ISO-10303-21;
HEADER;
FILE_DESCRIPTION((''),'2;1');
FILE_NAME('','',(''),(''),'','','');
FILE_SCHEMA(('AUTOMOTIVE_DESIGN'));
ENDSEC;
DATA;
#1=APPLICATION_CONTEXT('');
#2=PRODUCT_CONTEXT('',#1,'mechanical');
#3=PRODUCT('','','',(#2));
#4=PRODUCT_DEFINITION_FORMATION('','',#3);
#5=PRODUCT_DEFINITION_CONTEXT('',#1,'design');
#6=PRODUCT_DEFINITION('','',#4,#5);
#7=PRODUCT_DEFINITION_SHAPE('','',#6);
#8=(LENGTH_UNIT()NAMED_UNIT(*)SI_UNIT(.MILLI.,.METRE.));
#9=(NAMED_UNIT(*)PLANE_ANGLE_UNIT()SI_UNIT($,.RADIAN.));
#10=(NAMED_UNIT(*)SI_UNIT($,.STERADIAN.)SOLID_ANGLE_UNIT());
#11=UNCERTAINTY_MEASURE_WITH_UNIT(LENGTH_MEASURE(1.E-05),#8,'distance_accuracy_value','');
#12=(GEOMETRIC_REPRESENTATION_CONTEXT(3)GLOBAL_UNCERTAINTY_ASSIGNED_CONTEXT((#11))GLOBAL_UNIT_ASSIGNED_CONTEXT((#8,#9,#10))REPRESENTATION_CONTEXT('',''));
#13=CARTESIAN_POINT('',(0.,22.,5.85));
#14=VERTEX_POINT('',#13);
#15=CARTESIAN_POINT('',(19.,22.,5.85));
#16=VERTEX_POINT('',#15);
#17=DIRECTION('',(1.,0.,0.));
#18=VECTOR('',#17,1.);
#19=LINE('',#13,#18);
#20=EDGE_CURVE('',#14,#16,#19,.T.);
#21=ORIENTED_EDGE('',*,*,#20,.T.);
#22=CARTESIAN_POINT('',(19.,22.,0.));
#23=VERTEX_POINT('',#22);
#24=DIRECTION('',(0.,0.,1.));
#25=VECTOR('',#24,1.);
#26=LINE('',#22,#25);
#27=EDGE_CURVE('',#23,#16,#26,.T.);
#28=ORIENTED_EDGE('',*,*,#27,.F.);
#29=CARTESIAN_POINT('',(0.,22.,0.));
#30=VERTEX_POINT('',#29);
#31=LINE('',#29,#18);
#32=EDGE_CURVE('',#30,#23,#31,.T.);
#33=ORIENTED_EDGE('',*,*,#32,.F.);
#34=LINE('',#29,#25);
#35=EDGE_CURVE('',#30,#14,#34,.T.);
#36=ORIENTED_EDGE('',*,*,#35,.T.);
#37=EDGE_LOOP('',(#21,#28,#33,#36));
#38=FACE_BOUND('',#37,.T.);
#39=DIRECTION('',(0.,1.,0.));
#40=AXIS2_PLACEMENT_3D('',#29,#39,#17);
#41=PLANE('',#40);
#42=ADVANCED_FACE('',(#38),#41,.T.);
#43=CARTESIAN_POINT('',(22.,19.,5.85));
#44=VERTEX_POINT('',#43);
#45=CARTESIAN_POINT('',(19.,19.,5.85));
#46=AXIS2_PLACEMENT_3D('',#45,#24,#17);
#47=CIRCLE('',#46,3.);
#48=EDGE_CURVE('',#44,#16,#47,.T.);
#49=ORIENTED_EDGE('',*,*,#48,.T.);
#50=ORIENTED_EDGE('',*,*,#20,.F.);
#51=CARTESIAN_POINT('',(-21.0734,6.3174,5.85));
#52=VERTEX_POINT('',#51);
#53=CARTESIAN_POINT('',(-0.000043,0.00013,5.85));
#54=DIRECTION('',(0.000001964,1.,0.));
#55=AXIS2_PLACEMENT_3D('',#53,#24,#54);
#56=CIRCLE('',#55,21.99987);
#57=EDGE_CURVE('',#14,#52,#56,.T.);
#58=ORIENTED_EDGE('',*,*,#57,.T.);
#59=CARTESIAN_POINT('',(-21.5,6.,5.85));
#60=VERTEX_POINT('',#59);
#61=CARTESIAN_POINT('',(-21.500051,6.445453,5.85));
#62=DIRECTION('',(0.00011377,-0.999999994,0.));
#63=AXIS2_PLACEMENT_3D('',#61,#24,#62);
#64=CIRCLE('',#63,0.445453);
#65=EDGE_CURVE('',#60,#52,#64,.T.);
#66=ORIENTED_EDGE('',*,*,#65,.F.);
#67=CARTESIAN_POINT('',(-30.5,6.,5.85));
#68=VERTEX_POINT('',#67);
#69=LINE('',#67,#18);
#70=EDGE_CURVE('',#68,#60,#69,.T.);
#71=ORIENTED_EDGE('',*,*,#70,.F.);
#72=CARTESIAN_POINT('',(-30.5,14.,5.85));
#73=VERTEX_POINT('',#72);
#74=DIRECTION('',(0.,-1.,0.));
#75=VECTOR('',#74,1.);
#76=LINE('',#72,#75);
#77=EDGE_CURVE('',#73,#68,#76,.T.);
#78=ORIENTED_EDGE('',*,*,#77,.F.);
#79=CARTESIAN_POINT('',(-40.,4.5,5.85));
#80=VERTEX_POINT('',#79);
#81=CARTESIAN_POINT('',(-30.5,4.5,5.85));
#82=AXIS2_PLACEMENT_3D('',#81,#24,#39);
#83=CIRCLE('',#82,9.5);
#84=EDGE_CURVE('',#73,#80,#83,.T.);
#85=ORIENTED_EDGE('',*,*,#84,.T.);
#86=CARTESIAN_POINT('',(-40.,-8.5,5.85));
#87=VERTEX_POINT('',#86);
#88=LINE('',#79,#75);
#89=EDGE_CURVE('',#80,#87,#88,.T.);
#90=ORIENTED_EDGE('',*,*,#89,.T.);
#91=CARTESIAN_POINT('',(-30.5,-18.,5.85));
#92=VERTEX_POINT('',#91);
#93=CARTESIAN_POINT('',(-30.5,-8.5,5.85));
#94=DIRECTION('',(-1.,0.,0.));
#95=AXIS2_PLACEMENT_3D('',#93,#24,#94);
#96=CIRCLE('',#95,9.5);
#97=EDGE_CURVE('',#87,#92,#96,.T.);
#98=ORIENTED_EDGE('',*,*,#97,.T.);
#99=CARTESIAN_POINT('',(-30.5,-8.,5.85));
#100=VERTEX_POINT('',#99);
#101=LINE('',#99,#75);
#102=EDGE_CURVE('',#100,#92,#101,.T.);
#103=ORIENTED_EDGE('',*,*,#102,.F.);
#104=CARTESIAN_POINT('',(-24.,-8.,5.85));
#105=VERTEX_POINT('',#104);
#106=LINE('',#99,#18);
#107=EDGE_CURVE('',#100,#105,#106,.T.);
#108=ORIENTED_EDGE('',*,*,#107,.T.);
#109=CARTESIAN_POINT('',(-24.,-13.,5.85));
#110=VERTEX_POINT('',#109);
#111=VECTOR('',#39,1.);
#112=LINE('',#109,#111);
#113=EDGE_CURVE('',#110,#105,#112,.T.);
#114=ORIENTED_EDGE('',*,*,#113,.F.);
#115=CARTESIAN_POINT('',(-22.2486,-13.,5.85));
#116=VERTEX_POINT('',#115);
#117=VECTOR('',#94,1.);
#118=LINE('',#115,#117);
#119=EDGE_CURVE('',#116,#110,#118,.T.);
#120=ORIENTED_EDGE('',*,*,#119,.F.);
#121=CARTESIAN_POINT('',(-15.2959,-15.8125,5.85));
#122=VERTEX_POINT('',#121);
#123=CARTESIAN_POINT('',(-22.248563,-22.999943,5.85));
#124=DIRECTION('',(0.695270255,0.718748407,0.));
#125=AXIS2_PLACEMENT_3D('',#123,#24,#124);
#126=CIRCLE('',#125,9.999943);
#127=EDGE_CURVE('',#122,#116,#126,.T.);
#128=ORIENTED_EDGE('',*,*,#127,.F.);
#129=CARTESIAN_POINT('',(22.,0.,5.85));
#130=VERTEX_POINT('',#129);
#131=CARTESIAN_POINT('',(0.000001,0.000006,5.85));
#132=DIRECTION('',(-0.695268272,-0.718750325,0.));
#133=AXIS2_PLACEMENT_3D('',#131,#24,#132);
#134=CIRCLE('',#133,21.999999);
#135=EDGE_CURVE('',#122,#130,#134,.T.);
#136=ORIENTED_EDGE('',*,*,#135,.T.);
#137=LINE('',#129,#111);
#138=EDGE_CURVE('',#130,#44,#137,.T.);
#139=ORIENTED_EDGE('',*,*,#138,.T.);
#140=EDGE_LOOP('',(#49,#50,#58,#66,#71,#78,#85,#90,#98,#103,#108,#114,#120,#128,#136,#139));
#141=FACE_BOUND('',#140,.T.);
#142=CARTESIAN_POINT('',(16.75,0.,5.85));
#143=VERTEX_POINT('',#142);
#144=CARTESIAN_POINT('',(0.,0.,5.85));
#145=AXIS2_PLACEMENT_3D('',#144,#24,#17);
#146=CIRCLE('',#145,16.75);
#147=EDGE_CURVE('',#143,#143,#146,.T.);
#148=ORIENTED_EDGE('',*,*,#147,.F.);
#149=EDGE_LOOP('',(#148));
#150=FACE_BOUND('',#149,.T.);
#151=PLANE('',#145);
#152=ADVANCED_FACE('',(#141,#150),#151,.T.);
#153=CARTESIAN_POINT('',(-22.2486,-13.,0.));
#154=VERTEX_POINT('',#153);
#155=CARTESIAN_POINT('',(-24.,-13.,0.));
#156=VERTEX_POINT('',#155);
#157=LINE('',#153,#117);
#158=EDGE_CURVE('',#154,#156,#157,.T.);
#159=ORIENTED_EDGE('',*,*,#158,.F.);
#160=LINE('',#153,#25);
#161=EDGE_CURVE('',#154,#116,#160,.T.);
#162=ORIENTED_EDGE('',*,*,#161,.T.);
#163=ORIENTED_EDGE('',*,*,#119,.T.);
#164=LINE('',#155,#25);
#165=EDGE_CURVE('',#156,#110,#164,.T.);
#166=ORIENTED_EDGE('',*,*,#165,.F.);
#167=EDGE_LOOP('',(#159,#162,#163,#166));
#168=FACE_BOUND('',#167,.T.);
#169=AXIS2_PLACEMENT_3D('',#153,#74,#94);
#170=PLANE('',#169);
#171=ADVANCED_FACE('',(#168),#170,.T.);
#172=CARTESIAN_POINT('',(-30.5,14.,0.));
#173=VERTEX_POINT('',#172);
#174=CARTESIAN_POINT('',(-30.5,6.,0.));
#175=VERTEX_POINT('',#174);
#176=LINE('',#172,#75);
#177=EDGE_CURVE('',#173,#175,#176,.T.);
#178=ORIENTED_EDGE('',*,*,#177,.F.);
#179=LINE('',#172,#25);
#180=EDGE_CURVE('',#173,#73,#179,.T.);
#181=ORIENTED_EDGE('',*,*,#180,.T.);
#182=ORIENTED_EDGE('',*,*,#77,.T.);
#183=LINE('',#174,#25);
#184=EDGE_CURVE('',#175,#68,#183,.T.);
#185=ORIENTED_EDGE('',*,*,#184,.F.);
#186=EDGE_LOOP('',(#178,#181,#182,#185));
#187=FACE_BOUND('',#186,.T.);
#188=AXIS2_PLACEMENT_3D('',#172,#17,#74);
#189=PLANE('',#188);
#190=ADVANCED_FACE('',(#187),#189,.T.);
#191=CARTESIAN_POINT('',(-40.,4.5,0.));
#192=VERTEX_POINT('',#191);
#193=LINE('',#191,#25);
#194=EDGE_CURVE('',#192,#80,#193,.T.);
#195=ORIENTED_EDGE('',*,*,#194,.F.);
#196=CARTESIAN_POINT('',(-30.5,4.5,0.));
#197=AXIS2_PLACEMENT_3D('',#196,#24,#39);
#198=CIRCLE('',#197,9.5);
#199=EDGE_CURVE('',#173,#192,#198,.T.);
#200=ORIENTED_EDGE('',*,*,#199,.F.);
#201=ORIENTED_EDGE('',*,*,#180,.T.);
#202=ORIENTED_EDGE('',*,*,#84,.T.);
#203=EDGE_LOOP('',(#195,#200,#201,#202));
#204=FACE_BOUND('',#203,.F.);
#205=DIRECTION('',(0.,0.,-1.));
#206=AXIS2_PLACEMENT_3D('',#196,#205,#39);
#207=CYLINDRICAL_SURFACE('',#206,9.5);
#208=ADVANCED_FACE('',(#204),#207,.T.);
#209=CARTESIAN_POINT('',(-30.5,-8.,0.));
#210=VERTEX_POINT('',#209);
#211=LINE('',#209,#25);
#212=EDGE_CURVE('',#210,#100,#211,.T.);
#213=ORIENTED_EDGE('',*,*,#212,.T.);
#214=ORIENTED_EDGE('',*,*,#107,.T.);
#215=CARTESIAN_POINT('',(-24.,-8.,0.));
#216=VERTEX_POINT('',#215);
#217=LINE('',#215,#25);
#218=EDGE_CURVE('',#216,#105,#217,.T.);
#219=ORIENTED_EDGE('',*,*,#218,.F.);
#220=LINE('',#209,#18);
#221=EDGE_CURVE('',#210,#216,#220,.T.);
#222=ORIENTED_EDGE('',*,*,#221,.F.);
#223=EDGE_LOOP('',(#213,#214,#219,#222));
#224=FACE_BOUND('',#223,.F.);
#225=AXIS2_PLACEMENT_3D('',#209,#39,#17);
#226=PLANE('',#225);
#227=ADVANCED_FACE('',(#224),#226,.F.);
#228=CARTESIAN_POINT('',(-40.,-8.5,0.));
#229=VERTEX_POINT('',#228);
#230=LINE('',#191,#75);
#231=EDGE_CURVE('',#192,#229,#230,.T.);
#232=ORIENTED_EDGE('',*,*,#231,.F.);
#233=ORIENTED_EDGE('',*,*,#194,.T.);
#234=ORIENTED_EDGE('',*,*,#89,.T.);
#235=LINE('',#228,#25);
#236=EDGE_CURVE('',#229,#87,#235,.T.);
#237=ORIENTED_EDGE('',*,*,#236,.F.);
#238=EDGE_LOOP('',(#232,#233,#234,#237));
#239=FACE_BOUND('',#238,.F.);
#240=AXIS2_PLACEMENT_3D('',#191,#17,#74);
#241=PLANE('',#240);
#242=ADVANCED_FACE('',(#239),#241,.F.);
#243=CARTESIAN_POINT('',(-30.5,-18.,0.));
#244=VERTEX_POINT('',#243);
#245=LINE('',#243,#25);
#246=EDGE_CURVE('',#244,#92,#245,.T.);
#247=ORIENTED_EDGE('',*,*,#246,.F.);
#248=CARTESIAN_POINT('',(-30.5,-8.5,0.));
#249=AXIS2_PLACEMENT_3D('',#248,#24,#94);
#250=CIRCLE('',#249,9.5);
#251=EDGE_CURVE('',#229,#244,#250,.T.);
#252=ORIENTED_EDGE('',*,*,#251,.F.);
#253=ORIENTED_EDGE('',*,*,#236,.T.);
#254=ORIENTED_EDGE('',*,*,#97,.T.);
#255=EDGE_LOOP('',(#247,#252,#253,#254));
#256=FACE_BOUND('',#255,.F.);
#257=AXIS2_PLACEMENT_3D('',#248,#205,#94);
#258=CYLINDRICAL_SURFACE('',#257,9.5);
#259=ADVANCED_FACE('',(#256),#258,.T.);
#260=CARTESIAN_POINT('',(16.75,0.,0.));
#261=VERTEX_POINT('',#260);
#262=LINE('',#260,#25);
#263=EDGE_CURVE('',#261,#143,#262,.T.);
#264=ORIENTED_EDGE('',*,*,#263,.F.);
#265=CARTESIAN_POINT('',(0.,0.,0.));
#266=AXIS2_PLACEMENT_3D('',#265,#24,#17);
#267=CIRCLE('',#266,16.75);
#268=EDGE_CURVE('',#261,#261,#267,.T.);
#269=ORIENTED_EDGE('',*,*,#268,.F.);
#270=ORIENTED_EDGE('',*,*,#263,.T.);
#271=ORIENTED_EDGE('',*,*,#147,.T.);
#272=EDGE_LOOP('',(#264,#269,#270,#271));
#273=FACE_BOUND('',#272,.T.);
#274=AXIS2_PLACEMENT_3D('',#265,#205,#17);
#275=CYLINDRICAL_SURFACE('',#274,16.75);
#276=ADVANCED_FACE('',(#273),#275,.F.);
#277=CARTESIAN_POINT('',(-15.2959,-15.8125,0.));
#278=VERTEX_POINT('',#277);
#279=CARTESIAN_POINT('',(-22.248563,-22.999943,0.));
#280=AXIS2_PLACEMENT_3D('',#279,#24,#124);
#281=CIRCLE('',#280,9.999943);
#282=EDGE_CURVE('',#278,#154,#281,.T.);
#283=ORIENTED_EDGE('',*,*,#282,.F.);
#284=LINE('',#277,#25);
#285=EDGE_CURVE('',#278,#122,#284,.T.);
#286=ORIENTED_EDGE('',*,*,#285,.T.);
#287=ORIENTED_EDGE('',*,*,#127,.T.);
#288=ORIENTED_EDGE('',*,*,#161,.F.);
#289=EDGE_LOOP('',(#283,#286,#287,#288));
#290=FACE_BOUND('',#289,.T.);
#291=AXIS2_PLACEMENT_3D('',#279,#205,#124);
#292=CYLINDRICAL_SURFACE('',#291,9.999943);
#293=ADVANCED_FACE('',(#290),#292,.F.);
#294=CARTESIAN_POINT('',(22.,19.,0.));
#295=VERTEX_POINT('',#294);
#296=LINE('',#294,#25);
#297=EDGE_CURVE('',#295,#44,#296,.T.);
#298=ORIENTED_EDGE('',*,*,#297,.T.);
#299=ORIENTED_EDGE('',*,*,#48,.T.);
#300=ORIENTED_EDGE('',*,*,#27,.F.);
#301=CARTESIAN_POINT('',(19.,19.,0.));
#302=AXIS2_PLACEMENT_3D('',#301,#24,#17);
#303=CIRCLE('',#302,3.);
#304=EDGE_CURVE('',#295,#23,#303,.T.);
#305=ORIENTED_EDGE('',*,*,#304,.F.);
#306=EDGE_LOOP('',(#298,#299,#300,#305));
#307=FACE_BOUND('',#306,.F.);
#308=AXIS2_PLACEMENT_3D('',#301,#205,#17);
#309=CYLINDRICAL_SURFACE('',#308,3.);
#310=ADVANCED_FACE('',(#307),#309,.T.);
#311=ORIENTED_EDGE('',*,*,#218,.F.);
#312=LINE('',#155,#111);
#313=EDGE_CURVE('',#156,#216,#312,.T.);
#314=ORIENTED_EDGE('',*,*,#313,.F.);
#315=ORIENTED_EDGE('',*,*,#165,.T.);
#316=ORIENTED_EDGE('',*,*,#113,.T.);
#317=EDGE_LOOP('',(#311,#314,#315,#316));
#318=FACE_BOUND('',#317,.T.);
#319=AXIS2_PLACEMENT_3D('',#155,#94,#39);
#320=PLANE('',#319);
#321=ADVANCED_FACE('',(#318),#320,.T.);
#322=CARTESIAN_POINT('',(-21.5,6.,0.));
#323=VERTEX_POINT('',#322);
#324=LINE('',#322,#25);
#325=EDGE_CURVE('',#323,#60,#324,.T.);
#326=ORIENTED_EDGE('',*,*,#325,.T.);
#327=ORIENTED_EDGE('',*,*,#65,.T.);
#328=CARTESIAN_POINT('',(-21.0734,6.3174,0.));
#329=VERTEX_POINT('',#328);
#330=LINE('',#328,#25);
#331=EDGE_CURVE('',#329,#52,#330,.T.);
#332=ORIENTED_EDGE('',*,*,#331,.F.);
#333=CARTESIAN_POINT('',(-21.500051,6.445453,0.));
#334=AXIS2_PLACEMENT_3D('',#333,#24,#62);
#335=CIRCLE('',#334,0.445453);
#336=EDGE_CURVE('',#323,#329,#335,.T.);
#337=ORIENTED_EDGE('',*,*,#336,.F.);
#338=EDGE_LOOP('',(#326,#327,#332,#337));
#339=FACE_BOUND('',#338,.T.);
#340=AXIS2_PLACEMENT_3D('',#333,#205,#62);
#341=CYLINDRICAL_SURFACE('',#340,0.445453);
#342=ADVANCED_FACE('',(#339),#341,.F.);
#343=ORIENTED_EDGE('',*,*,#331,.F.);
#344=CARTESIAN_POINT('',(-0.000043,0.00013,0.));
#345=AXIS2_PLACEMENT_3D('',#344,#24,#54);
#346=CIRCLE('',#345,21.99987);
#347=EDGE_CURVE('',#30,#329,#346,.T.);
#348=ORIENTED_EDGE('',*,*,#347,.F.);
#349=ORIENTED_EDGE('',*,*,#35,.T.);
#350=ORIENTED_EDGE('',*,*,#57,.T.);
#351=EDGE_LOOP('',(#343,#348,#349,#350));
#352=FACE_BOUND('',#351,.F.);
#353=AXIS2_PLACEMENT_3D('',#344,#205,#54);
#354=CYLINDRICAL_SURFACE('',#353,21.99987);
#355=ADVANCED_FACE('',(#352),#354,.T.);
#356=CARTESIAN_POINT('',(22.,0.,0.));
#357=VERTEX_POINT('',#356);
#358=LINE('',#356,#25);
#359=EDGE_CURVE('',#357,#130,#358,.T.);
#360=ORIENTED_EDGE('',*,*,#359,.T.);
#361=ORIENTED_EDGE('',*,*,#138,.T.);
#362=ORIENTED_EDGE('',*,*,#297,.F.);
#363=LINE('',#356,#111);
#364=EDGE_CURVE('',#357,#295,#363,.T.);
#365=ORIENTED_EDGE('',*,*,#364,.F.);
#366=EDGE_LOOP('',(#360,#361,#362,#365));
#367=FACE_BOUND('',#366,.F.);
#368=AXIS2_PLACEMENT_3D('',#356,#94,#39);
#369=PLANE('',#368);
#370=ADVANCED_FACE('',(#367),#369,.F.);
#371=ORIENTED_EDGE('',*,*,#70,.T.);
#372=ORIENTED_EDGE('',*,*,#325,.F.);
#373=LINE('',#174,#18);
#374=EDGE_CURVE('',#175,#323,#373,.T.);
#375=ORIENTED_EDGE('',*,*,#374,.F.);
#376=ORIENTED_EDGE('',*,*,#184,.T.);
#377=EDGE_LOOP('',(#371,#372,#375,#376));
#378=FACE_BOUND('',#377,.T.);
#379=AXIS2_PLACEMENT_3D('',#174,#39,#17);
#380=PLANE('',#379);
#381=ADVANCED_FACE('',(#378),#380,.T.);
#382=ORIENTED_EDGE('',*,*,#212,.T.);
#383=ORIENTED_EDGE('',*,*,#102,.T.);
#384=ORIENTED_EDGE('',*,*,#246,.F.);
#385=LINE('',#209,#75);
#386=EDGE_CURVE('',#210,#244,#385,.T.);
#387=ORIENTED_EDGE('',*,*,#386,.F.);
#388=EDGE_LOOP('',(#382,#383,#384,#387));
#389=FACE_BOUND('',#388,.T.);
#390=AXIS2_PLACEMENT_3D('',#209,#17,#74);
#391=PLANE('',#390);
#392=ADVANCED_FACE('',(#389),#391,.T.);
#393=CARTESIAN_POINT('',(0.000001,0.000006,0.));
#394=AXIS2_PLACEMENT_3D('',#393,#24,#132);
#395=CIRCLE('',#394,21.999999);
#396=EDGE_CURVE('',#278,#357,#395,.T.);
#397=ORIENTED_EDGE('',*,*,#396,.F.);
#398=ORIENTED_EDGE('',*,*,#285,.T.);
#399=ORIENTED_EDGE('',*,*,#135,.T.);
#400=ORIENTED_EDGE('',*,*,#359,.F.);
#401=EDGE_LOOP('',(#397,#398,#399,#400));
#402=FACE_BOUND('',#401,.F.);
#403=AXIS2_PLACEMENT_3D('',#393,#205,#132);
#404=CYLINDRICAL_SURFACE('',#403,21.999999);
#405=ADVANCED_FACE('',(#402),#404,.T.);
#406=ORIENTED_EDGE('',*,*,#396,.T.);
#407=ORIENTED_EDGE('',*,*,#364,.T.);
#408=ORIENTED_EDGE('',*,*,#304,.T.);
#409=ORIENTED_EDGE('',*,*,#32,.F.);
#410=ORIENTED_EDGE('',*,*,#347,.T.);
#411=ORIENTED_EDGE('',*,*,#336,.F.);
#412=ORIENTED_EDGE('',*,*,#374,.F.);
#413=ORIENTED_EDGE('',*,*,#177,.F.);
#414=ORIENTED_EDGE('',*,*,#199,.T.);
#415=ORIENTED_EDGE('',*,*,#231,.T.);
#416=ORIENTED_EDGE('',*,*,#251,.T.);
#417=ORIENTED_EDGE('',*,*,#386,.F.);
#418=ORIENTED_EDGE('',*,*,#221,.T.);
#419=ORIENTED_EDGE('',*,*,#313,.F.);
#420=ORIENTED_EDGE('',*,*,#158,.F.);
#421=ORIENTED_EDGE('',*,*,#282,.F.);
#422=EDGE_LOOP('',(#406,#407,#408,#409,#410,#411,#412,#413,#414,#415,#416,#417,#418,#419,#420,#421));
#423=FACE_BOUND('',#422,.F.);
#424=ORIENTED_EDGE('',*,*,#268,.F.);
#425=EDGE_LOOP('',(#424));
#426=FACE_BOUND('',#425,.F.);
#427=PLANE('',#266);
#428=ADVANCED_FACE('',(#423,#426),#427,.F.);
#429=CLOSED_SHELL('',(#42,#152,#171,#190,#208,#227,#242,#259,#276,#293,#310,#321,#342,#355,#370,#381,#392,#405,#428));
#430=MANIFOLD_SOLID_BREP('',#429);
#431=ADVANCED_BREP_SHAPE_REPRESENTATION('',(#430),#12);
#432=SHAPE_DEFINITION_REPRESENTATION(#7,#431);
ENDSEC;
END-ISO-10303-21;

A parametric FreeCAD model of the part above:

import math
import FreeCAD as App
import Part
import Sketcher
from FreeCAD import Vector

doc = App.newDocument("Part")
body = doc.addObject("PartDesign::Body", "Body")

sketch1 = body.newObject("Sketcher::SketchObject", "Sketch")
sketch1.AttachmentSupport = (doc.getObject("XY_Plane"), [""])
sketch1.MapMode = "FlatFace"
sketch1.addGeometry(Part.ArcOfCircle(Part.Circle(Vector(-30.5, 4.5, 0), Vector(0, 0, 1), 9.5), math.radians(90), math.radians(180)), False)
sketch1.addGeometry(Part.LineSegment(Vector(-40, 4.5, 0), Vector(-40, -8.5, 0)), False)
sketch1.addGeometry(Part.ArcOfCircle(Part.Circle(Vector(-30.5, -8.5, 0), Vector(0, 0, 1), 9.5), math.radians(180), math.radians(270)), False)
sketch1.addGeometry(Part.LineSegment(Vector(-30.5, -18, 0), Vector(-30.5, -8, 0)), False)
sketch1.addGeometry(Part.LineSegment(Vector(-30.5, -8, 0), Vector(-24, -8, 0)), False)
sketch1.addGeometry(Part.LineSegment(Vector(-24, -8, 0), Vector(-24, -13, 0)), False)
sketch1.addGeometry(Part.LineSegment(Vector(-24, -13, 0), Vector(-22.25, -13, 0)), False)
sketch1.addGeometry(Part.ArcOfCircle(Part.Circle(Vector(-22.25, -23, 0), Vector(0, 0, 1), 10), math.radians(46), math.radians(90)), False)
sketch1.addGeometry(Part.ArcOfCircle(Part.Circle(Vector(0, 0, 0), Vector(0, 0, 1), 22), math.radians(-134), math.radians(0)), False)
sketch1.addGeometry(Part.LineSegment(Vector(22, 0, 0), Vector(22, 19, 0)), False)
sketch1.addGeometry(Part.ArcOfCircle(Part.Circle(Vector(19, 19, 0), Vector(0, 0, 1), 3), math.radians(0), math.radians(90)), False)
sketch1.addGeometry(Part.LineSegment(Vector(19, 22, 0), Vector(0, 22, 0)), False)
sketch1.addGeometry(Part.ArcOfCircle(Part.Circle(Vector(0, 0, 0), Vector(0, 0, 1), 22), math.radians(90), math.radians(163)), False)
sketch1.addGeometry(Part.ArcOfCircle(Part.Circle(Vector(-21.5, 6.45, 0), Vector(0, 0, 1), 0.45), math.radians(-90), math.radians(-17)), False)
sketch1.addGeometry(Part.LineSegment(Vector(-21.5, 6, 0), Vector(-30.5, 6, 0)), False)
sketch1.addGeometry(Part.LineSegment(Vector(-30.5, 6, 0), Vector(-30.5, 14, 0)), False)
sketch1.addGeometry(Part.Circle(Vector(0, 0, 0), Vector(0, 0, 1), 16.75), False)
sketch1.addConstraint(Sketcher.Constraint("Tangent", 0, 2, 1, 1))
sketch1.addConstraint(Sketcher.Constraint("Tangent", 1, 2, 2, 1))
sketch1.addConstraint(Sketcher.Constraint("Coincident", 2, 2, 3, 1))
sketch1.addConstraint(Sketcher.Constraint("Coincident", 3, 2, 4, 1))
sketch1.addConstraint(Sketcher.Constraint("Coincident", 4, 2, 5, 1))
sketch1.addConstraint(Sketcher.Constraint("Coincident", 5, 2, 6, 1))
sketch1.addConstraint(Sketcher.Constraint("Tangent", 6, 2, 7, 2))
sketch1.addConstraint(Sketcher.Constraint("Tangent", 7, 1, 8, 1))
sketch1.addConstraint(Sketcher.Constraint("Tangent", 8, 2, 9, 1))
sketch1.addConstraint(Sketcher.Constraint("Tangent", 9, 2, 10, 1))
sketch1.addConstraint(Sketcher.Constraint("Tangent", 10, 2, 11, 1))
sketch1.addConstraint(Sketcher.Constraint("Tangent", 11, 2, 12, 1))
sketch1.addConstraint(Sketcher.Constraint("Tangent", 12, 2, 13, 2))
sketch1.addConstraint(Sketcher.Constraint("Tangent", 13, 1, 14, 1))
sketch1.addConstraint(Sketcher.Constraint("Coincident", 14, 2, 15, 1))
sketch1.addConstraint(Sketcher.Constraint("Coincident", 15, 2, 0, 1))
sketch1.addConstraint(Sketcher.Constraint("Vertical", 1))
sketch1.addConstraint(Sketcher.Constraint("Vertical", 3))
sketch1.addConstraint(Sketcher.Constraint("Horizontal", 4))
sketch1.addConstraint(Sketcher.Constraint("Vertical", 5))
sketch1.addConstraint(Sketcher.Constraint("Horizontal", 6))
sketch1.addConstraint(Sketcher.Constraint("Vertical", 9))
sketch1.addConstraint(Sketcher.Constraint("Horizontal", 11))
sketch1.addConstraint(Sketcher.Constraint("Horizontal", 14))
sketch1.addConstraint(Sketcher.Constraint("Vertical", 15))
sketch1.addConstraint(Sketcher.Constraint("Coincident", 8, 3, -1, 1))
sketch1.addConstraint(Sketcher.Constraint("Coincident", 12, 3, -1, 1))
sketch1.addConstraint(Sketcher.Constraint("Coincident", 16, 3, -1, 1))
sketch1.addConstraint(Sketcher.Constraint("Equal", 0, 2))
sketch1.addConstraint(Sketcher.Constraint("Equal", 8, 12))
sketch1.addConstraint(Sketcher.Constraint("Vertical", 0, 3, 2, 2))
sketch1.addConstraint(Sketcher.Constraint("Vertical", 3, 2, 14, 2))
sketch1.addConstraint(Sketcher.Constraint("Radius", 7, 10.0))
sketch1.addConstraint(Sketcher.Constraint("Radius", 8, 22.0))
sketch1.addConstraint(Sketcher.Constraint("Radius", 10, 3.0))
sketch1.addConstraint(Sketcher.Constraint("Diameter", 16, 33.5))
sketch1.addConstraint(Sketcher.Constraint("DistanceX", 14, 2, 14, 1, 9.0))
sketch1.addConstraint(Sketcher.Constraint("DistanceY", 3, 1, 3, 2, 10.0))
sketch1.addConstraint(Sketcher.Constraint("DistanceY", 5, 2, 5, 1, 5.0))
sketch1.addConstraint(Sketcher.Constraint("DistanceY", 15, 1, 15, 2, 8.0))
sketch1.addConstraint(Sketcher.Constraint("DistanceX", 4, 1, 4, 2, 6.5))
sketch1.addConstraint(Sketcher.Constraint("DistanceX", 0, 2, -1, 1, 40.0))
sketch1.addConstraint(Sketcher.Constraint("DistanceY", 3, 2, -1, 1, 8.0))
sketch1.addConstraint(Sketcher.Constraint("DistanceX", 4, 2, -1, 1, 24.0))
sketch1.addConstraint(Sketcher.Constraint("DistanceY", -1, 1, 13, 1, 6.0))
pad1 = body.newObject("PartDesign::Pad", "Pad")
pad1.Profile = sketch1
pad1.Length = 5.85

doc.recompute()
